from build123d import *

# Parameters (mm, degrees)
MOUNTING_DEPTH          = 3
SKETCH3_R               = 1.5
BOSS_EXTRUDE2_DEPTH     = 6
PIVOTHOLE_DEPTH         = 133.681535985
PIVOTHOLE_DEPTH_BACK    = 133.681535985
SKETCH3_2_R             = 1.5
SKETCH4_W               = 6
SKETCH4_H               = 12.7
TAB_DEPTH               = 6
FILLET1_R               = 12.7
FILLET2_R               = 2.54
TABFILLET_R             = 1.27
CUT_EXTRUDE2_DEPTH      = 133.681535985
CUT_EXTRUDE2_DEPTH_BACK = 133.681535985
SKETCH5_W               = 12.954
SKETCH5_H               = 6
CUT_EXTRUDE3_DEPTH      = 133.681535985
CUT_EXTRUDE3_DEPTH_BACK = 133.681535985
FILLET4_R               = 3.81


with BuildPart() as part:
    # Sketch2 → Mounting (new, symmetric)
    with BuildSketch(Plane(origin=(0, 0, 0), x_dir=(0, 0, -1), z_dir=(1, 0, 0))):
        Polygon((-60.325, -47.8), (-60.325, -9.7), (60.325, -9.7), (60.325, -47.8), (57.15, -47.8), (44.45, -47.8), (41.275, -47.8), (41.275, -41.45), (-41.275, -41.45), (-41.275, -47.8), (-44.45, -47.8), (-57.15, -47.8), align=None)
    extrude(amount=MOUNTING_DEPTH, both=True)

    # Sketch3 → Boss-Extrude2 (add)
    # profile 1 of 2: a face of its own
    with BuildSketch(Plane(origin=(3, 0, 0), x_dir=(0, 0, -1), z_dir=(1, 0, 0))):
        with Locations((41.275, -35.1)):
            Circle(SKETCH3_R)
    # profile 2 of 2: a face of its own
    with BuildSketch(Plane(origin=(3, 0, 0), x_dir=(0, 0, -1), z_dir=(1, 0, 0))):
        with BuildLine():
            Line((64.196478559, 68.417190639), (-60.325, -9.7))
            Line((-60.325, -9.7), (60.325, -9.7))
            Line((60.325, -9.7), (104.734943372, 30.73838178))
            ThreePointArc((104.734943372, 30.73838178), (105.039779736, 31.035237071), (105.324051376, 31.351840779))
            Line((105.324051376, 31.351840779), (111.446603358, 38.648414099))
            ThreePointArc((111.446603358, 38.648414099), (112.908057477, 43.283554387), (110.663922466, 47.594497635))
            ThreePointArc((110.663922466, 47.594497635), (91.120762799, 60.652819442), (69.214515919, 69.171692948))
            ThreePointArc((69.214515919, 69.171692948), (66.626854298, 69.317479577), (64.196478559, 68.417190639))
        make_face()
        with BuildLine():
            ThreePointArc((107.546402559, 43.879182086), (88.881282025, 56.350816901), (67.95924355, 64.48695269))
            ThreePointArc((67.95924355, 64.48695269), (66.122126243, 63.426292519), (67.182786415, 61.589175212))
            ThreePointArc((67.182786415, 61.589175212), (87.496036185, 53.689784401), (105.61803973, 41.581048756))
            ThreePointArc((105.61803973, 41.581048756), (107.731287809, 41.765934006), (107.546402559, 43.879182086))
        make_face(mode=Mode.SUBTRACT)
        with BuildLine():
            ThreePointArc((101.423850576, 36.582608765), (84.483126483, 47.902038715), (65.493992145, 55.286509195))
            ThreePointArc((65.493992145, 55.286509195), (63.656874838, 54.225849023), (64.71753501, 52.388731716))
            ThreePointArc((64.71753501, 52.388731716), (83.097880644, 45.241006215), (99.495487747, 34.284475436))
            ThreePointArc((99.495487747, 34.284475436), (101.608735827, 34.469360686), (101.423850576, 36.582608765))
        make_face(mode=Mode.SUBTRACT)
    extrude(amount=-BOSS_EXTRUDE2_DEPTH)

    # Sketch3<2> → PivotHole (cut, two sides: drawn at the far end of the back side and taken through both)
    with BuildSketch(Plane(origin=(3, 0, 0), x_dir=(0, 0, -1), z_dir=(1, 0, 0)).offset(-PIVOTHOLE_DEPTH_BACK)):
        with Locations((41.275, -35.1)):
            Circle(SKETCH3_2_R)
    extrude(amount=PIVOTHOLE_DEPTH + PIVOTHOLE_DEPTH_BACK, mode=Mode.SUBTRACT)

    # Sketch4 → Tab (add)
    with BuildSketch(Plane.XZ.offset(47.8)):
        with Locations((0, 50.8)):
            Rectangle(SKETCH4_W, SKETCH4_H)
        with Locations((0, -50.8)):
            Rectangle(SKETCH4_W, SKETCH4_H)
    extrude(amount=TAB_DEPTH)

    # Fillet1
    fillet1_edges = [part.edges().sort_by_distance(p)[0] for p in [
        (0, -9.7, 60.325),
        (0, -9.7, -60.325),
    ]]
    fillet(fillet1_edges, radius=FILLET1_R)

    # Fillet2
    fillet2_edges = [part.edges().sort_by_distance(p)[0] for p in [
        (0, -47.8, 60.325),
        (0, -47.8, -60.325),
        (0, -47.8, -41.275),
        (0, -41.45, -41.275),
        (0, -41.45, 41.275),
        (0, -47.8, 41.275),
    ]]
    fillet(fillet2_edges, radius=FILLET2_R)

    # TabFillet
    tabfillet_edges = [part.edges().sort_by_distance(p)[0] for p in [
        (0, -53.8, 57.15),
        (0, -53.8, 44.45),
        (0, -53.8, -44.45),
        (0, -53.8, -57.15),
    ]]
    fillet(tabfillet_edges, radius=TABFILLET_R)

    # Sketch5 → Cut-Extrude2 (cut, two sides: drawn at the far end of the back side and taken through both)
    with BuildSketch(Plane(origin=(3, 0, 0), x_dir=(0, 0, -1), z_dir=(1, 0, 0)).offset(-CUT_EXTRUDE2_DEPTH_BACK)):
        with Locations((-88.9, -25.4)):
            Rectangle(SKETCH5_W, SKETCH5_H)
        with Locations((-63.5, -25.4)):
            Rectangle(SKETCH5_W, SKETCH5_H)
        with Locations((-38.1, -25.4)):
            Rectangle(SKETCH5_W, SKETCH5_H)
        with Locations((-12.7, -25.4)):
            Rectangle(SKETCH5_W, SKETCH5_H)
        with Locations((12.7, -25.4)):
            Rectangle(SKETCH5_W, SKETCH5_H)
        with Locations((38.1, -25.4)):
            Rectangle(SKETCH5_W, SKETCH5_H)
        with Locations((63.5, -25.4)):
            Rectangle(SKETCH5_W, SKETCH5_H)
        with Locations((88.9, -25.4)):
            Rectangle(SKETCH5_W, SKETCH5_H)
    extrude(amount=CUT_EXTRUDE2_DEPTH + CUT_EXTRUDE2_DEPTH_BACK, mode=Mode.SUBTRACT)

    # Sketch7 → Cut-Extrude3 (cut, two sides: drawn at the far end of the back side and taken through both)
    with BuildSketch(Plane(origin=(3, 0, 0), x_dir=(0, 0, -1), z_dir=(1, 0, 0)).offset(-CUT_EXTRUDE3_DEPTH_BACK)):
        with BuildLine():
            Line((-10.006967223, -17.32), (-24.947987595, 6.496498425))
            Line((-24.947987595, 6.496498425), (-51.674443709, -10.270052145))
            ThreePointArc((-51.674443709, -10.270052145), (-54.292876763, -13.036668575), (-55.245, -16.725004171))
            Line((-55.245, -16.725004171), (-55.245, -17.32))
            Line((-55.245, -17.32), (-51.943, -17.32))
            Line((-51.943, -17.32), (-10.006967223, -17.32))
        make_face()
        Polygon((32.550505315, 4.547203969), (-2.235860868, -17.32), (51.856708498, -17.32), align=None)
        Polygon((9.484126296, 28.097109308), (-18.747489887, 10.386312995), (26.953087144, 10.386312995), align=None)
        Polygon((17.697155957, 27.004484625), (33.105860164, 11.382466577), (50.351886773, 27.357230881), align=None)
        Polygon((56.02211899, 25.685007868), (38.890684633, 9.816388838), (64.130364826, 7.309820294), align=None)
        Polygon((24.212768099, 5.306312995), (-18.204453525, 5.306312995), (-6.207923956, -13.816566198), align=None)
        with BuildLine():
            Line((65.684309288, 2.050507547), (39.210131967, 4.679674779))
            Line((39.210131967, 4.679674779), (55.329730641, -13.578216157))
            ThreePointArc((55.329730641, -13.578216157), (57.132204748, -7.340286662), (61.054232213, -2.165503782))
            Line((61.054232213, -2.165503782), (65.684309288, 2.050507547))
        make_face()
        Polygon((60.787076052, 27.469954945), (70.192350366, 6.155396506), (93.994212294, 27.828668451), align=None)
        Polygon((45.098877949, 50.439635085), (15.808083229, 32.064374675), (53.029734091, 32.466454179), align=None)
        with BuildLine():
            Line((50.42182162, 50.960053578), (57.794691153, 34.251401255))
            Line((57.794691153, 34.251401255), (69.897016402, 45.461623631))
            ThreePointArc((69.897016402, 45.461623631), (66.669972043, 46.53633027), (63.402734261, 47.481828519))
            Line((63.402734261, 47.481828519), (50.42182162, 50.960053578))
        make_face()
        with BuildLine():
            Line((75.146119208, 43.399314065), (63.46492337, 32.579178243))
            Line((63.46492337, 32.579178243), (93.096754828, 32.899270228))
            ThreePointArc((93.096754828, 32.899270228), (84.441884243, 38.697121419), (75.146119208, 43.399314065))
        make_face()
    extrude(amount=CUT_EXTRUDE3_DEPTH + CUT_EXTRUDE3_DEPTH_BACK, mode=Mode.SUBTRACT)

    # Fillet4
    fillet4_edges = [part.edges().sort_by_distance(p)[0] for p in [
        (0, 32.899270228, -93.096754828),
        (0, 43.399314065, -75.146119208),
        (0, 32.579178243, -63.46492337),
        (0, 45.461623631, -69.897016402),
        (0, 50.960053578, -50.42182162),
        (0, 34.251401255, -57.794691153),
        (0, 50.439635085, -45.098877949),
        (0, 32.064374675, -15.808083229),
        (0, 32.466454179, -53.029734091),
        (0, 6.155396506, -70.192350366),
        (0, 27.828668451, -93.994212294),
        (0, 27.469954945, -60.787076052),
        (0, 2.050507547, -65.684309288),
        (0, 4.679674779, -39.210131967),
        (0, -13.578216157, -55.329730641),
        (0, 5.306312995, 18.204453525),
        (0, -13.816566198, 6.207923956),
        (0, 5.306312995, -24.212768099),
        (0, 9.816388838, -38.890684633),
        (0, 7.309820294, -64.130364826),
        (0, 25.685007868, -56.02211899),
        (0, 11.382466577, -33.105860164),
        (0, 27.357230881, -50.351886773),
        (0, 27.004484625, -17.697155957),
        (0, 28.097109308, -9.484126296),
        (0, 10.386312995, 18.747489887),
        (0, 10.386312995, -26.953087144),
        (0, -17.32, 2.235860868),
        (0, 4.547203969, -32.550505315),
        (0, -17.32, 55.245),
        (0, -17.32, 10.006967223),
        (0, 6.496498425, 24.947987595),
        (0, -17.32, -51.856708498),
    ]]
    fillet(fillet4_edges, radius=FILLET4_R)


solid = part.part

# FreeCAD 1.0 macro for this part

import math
import FreeCAD as App
import Part
import Sketcher

V = App.Vector
Q = App.Units.Quantity


def edges_at(feature, points):
    """Names of the edges that pass closest to the given points."""
    edges = feature.Shape.Edges
    near = lambda p: min(range(len(edges)), key=lambda i: edges[i].distToShape(Part.Vertex(*p))[0])
    return sorted({f"Edge{near(p) + 1}" for p in points})

doc = App.newDocument("Part")
body = doc.addObject("PartDesign::Body", "Body")

# Sketch on YZ plane
sketch1 = body.newObject("Sketcher::SketchObject", "Sketch")
sketch1.AttachmentSupport = (doc.getObject("YZ_Plane"), [""])
sketch1.MapMode = "FlatFace"
sketch1.addGeometry(Part.LineSegment(V(-9.7, 60.325, 0), V(-47.8, 60.325, 0)), False)
sketch1.addGeometry(Part.LineSegment(V(-47.8, 60.325, 0), V(-47.8, 41.275, 0)), False)
sketch1.addGeometry(Part.LineSegment(V(-47.8, 41.275, 0), V(-41.45, 41.275, 0)), False)
sketch1.addGeometry(Part.LineSegment(V(-41.45, 41.275, 0), V(-41.45, -41.275, 0)), False)
sketch1.addGeometry(Part.LineSegment(V(-41.45, -41.275, 0), V(-47.8, -41.275, 0)), False)
sketch1.addGeometry(Part.LineSegment(V(-47.8, -41.275, 0), V(-47.8, -60.325, 0)), False)
sketch1.addGeometry(Part.LineSegment(V(-47.8, -60.325, 0), V(-9.7, -60.325, 0)), False)
sketch1.addGeometry(Part.LineSegment(V(-9.7, -60.325, 0), V(-9.7, 60.325, 0)), False)
sketch1.addConstraint(Sketcher.Constraint("Coincident", 0, 2, 1, 1))
sketch1.addConstraint(Sketcher.Constraint("Coincident", 1, 2, 2, 1))
sketch1.addConstraint(Sketcher.Constraint("Coincident", 2, 2, 3, 1))
sketch1.addConstraint(Sketcher.Constraint("Coincident", 3, 2, 4, 1))
sketch1.addConstraint(Sketcher.Constraint("Coincident", 4, 2, 5, 1))
sketch1.addConstraint(Sketcher.Constraint("Coincident", 5, 2, 6, 1))
sketch1.addConstraint(Sketcher.Constraint("Coincident", 6, 2, 7, 1))
sketch1.addConstraint(Sketcher.Constraint("Coincident", 7, 2, 0, 1))
sketch1.addConstraint(Sketcher.Constraint("Horizontal", 0))
sketch1.addConstraint(Sketcher.Constraint("Vertical", 1))
sketch1.addConstraint(Sketcher.Constraint("Horizontal", 2))
sketch1.addConstraint(Sketcher.Constraint("Vertical", 3))
sketch1.addConstraint(Sketcher.Constraint("Horizontal", 4))
sketch1.addConstraint(Sketcher.Constraint("Vertical", 5))
sketch1.addConstraint(Sketcher.Constraint("Horizontal", 6))
sketch1.addConstraint(Sketcher.Constraint("Vertical", 7))
sketch1.addConstraint(Sketcher.Constraint("Symmetric", 1, 2, 4, 2, -1))
sketch1.addConstraint(Sketcher.Constraint("Equal", 1, 5))
sketch1.addConstraint(Sketcher.Constraint("DistanceX", 0, 2, 0, 1, Q("1.5 in")))
sketch1.addConstraint(Sketcher.Constraint("DistanceY", 3, 2, 0, 2, Q("4 in")))
sketch1.addConstraint(Sketcher.Constraint("DistanceX", 2, 1, 2, 2, Q("0.25 in")))
sketch1.addConstraint(Sketcher.Constraint("DistanceY", 1, 2, 1, 1, Q("0.75 in")))
sketch1.addConstraint(Sketcher.Constraint("DistanceX", 0, 2, -1, 1, 47.8))
pad1 = body.newObject("PartDesign::Pad", "Pad")
pad1.Profile = sketch1
pad1.Length = 6
pad1.Midplane = True

# Sketch on YZ plane
sketch2 = body.newObject("Sketcher::SketchObject", "Sketch001")
sketch2.AttachmentSupport = (doc.getObject("YZ_Plane"), [""])
sketch2.MapMode = "FlatFace"
sketch2.AttachmentOffset = App.Placement(V(0, 0, 3), App.Rotation())
sketch2.addGeometry(Part.Circle(V(-35.1, -41.275, 0), V(0, 0, 1), 1.5), False)
sketch2.addGeometry(Part.LineSegment(V(68.417191, -64.196479, 0), V(-9.7, 60.325, 0)), False)
sketch2.addGeometry(Part.LineSegment(V(-9.7, 60.325, 0), V(-9.7, -60.325, 0)), False)
sketch2.addGeometry(Part.LineSegment(V(-9.7, -60.325, 0), V(30.738382, -104.734943, 0)), False)
sketch2.addGeometry(Part.ArcOfCircle(Part.Circle(V(35.433542, -100.459669, 0), V(0, 0, 1), 6.35), math.radians(-137.679932), math.radians(-130)), False)
sketch2.addGeometry(Part.LineSegment(V(31.351841, -105.324051, 0), V(38.648414, -111.446603, 0)), False)
sketch2.addGeometry(Part.ArcOfCircle(Part.Circle(V(42.730115, -106.582221, 0), V(0, 0, 1), 6.35), math.radians(-130), math.radians(-40)), False)
sketch2.addGeometry(Part.ArcOfCircle(Part.Circle(V(-35.1, -41.275, 0), V(0, 0, 1), 107.95), math.radians(-40), math.radians(-15)), False)
sketch2.addGeometry(Part.ArcOfCircle(Part.Circle(V(63.038064, -67.571015, 0), V(0, 0, 1), 6.35), math.radians(-15), math.radians(32.101656)), False)
sketch2.addGeometry(Part.ArcOfCircle(Part.Circle(V(-35.1, -41.275, 0), V(0, 0, 1), 93.575), math.radians(-40), math.radians(-15)), False)
sketch2.addGeometry(Part.ArcOfCircle(Part.Circle(V(35.433542, -100.459669, 0), V(0, 0, 1), 1.5), math.radians(140), math.radians(320)), False)
sketch2.addGeometry(Part.ArcOfCircle(Part.Circle(V(-35.1, -41.275, 0), V(0, 0, 1), 90.575), math.radians(-40), math.radians(-15)), False)
sketch2.addGeometry(Part.ArcOfCircle(Part.Circle(V(53.83762, -65.105764, 0), V(0, 0, 1), 1.5), math.radians(-15), math.radians(165)), False)
sketch2.addGeometry(Part.ArcOfCircle(Part.Circle(V(-35.1, -41.275, 0), V(0, 0, 1), 103.1), math.radians(-40), math.radians(-15)), False)
sketch2.addGeometry(Part.ArcOfCircle(Part.Circle(V(42.730115, -106.582221, 0), V(0, 0, 1), 1.5), math.radians(140), math.radians(320)), False)
sketch2.addGeometry(Part.ArcOfCircle(Part.Circle(V(-35.1, -41.275, 0), V(0, 0, 1), 100.1), math.radians(-40), math.radians(-15)), False)
sketch2.addGeometry(Part.ArcOfCircle(Part.Circle(V(63.038064, -67.571015, 0), V(0, 0, 1), 1.5), math.radians(-15), math.radians(165)), False)
sketch2.addConstraint(Sketcher.Constraint("Coincident", 1, 2, 2, 1))
sketch2.addConstraint(Sketcher.Constraint("Coincident", 2, 2, 3, 1))
sketch2.addConstraint(Sketcher.Constraint("Tangent", 3, 2, 4, 1))
sketch2.addConstraint(Sketcher.Constraint("Tangent", 4, 2, 5, 1))
sketch2.addConstraint(Sketcher.Constraint("Tangent", 5, 2, 6, 1))
sketch2.addConstraint(Sketcher.Constraint("Tangent", 6, 2, 7, 1))
sketch2.addConstraint(Sketcher.Constraint("Tangent", 7, 2, 8, 1))
sketch2.addConstraint(Sketcher.Constraint("Tangent", 8, 2, 1, 1))
sketch2.addConstraint(Sketcher.Constraint("Tangent", 9, 1, 10, 2))
sketch2.addConstraint(Sketcher.Constraint("Tangent", 10, 1, 11, 1))
sketch2.addConstraint(Sketcher.Constraint("Tangent", 11, 2, 12, 2))
sketch2.addConstraint(Sketcher.Constraint("Tangent", 12, 1, 9, 2))
sketch2.addConstraint(Sketcher.Constraint("Tangent", 13, 1, 14, 2))
sketch2.addConstraint(Sketcher.Constraint("Tangent", 14, 1, 15, 1))
sketch2.addConstraint(Sketcher.Constraint("Tangent", 15, 2, 16, 2))
sketch2.addConstraint(Sketcher.Constraint("Tangent", 16, 1, 13, 2))
sketch2.addConstraint(Sketcher.Constraint("Vertical", 2))
sketch2.addConstraint(Sketcher.Constraint("Coincident", 7, 3, 0, 3))
sketch2.addConstraint(Sketcher.Constraint("Coincident", 9, 3, 0, 3))
sketch2.addConstraint(Sketcher.Constraint("Coincident", 10, 3, 4, 3))
sketch2.addConstraint(Sketcher.Constraint("Coincident", 11, 3, 0, 3))
sketch2.addConstraint(Sketcher.Constraint("Coincident", 13, 3, 0, 3))
sketch2.addConstraint(Sketcher.Constraint("Coincident", 14, 3, 6, 3))
sketch2.addConstraint(Sketcher.Constraint("Coincident", 15, 3, 0, 3))
sketch2.addConstraint(Sketcher.Constraint("Coincident", 16, 3, 8, 3))
sketch2.addConstraint(Sketcher.Constraint("Equal", 4, 6))
sketch2.addConstraint(Sketcher.Constraint("Equal", 0, 10))
sketch2.addConstraint(Sketcher.Constraint("Equal", 12, 14))
sketch2.addConstraint(Sketcher.Constraint("Radius", 4, Q("0.25 in")))
sketch2.addConstraint(Sketcher.Constraint("Radius", 7, Q("4.25 in")))
sketch2.addConstraint(Sketcher.Constraint("Angle", 5, Q("-40 deg")))
sketch2.addConstraint(Sketcher.Constraint("DistanceX", 15, 3, 1, 2, Q("1 in")))
sketch2.addConstraint(Sketcher.Constraint("DistanceY", 15, 3, 1, 2, Q("4 in")))
sketch2.addConstraint(Sketcher.Constraint("DistanceY", 2, 2, 2, 1, Q("4.75 in")))
sketch2.addConstraint(Sketcher.Constraint("Diameter", 0, 3.0))
sketch2.addConstraint(Sketcher.Constraint("Radius", 9, 93.575))
sketch2.addConstraint(Sketcher.Constraint("DistanceY", 0, 3, -1, 1, Q("1.625 in")))
sketch2.addConstraint(Sketcher.Constraint("DistanceX", 0, 3, -1, 1, 35.1))
sketch2.addConstraint(Sketcher.Constraint("DistanceY", 6, 2, 14, 3, 4.081701))
sketch2.addConstraint(Sketcher.Constraint("Distance", 1, 146.996238))
sketch2.addConstraint(Sketcher.Constraint("DistanceX", -1, 1, 12, 3, 53.83762))
pad2 = body.newObject("PartDesign::Pad", "Pad001")
pad2.Profile = sketch2
pad2.Length = 6
pad2.Reversed = True

# Sketch on YZ plane
sketch3 = body.newObject("Sketcher::SketchObject", "Sketch002")
sketch3.AttachmentSupport = (doc.getObject("YZ_Plane"), [""])
sketch3.MapMode = "FlatFace"
sketch3.AttachmentOffset = App.Placement(V(0, 0, 3), App.Rotation())
sketch3.addGeometry(Part.Circle(V(-35.1, -41.275, 0), V(0, 0, 1), 1.5), False)
sketch3.addConstraint(Sketcher.Constraint("Diameter", 0, 3.0))
sketch3.addConstraint(Sketcher.Constraint("DistanceY", 0, 3, -1, 1, Q("1.625 in")))
sketch3.addConstraint(Sketcher.Constraint("DistanceX", 0, 3, -1, 1, 35.1))
pocket1 = body.newObject("PartDesign::Pocket", "Pocket")
pocket1.Profile = sketch3
pocket1.Type = "ThroughAll"
pocket1.Midplane = True

# Sketch on XZ plane
sketch4 = body.newObject("Sketcher::SketchObject", "Sketch003")
sketch4.AttachmentSupport = (doc.getObject("XZ_Plane"), [""])
sketch4.MapMode = "FlatFace"
sketch4.AttachmentOffset = App.Placement(V(0, 0, 47.8), App.Rotation())
sketch4.addGeometry(Part.LineSegment(V(-3, 57.15, 0), V(-3, 44.45, 0)), False)
sketch4.addGeometry(Part.LineSegment(V(-3, 44.45, 0), V(3, 44.45, 0)), False)
sketch4.addGeometry(Part.LineSegment(V(3, 44.45, 0), V(3, 57.15, 0)), False)
sketch4.addGeometry(Part.LineSegment(V(3, 57.15, 0), V(-3, 57.15, 0)), False)
sketch4.addGeometry(Part.LineSegment(V(-3, -44.45, 0), V(-3, -57.15, 0)), False)
sketch4.addGeometry(Part.LineSegment(V(-3, -57.15, 0), V(3, -57.15, 0)), False)
sketch4.addGeometry(Part.LineSegment(V(3, -57.15, 0), V(3, -44.45, 0)), False)
sketch4.addGeometry(Part.LineSegment(V(3, -44.45, 0), V(-3, -44.45, 0)), False)
sketch4.addConstraint(Sketcher.Constraint("Coincident", 0, 2, 1, 1))
sketch4.addConstraint(Sketcher.Constraint("Coincident", 1, 2, 2, 1))
sketch4.addConstraint(Sketcher.Constraint("Coincident", 2, 2, 3, 1))
sketch4.addConstraint(Sketcher.Constraint("Coincident", 3, 2, 0, 1))
sketch4.addConstraint(Sketcher.Constraint("Coincident", 4, 2, 5, 1))
sketch4.addConstraint(Sketcher.Constraint("Coincident", 5, 2, 6, 1))
sketch4.addConstraint(Sketcher.Constraint("Coincident", 6, 2, 7, 1))
sketch4.addConstraint(Sketcher.Constraint("Coincident", 7, 2, 4, 1))
sketch4.addConstraint(Sketcher.Constraint("Vertical", 0))
sketch4.addConstraint(Sketcher.Constraint("Horizontal", 1))
sketch4.addConstraint(Sketcher.Constraint("Vertical", 2))
sketch4.addConstraint(Sketcher.Constraint("Horizontal", 3))
sketch4.addConstraint(Sketcher.Constraint("Vertical", 4))
sketch4.addConstraint(Sketcher.Constraint("Horizontal", 5))
sketch4.addConstraint(Sketcher.Constraint("Vertical", 6))
sketch4.addConstraint(Sketcher.Constraint("Horizontal", 7))
sketch4.addConstraint(Sketcher.Constraint("Symmetric", 2, 2, 4, 2, -1, 1))
sketch4.addConstraint(Sketcher.Constraint("Symmetric", 0, 2, 6, 2, -1, 1))
sketch4.addConstraint(Sketcher.Constraint("Vertical", 3, 2, 4, 2))
sketch4.addConstraint(Sketcher.Constraint("DistanceY", 0, 2, 0, 1, Q("0.5 in")))
sketch4.addConstraint(Sketcher.Constraint("DistanceY", 4, 2, 0, 2, Q("4 in")))
sketch4.addConstraint(Sketcher.Constraint("DistanceX", 1, 1, 1, 2, 6.0))
pad3 = body.newObject("PartDesign::Pad", "Pad002")
pad3.Profile = sketch4
pad3.Length = 6
doc.recompute()

fillet = body.newObject("PartDesign::Fillet", "Fillet")
fillet.Base = (pad3, edges_at(pad3, [(0, -9.7, 60.325), (0, -9.7, -60.325)]))
fillet.Radius = Q("0.5 in")
doc.recompute()

fillet2 = body.newObject("PartDesign::Fillet", "Fillet001")
fillet2.Base = (fillet, edges_at(fillet, [
    (0, -47.8, 60.325),
    (0, -47.8, -60.325),
    (0, -47.8, -41.275),
    (0, -41.45, -41.275),
    (0, -41.45, 41.275),
    (0, -47.8, 41.275),
]))
fillet2.Radius = Q("0.1 in")
doc.recompute()

fillet3 = body.newObject("PartDesign::Fillet", "Fillet002")
fillet3.Base = (fillet2, edges_at(fillet2, [
    (0, -53.8, 57.15),
    (0, -53.8, 44.45),
    (0, -53.8, -44.45),
    (0, -53.8, -57.15),
]))
fillet3.Radius = Q("0.05 in")

# Sketch on YZ plane
sketch5 = body.newObject("Sketcher::SketchObject", "Sketch004")
sketch5.AttachmentSupport = (doc.getObject("YZ_Plane"), [""])
sketch5.MapMode = "FlatFace"
sketch5.AttachmentOffset = App.Placement(V(0, 0, 3), App.Rotation())
sketch5.addGeometry(Part.LineSegment(V(-22.4, 95.377, 0), V(-28.4, 95.377, 0)), False)
sketch5.addGeometry(Part.LineSegment(V(-28.4, 95.377, 0), V(-28.4, 82.423, 0)), False)
sketch5.addGeometry(Part.LineSegment(V(-28.4, 82.423, 0), V(-22.4, 82.423, 0)), False)
sketch5.addGeometry(Part.LineSegment(V(-22.4, 82.423, 0), V(-22.4, 95.377, 0)), False)
sketch5.addGeometry(Part.LineSegment(V(-22.4, 69.977, 0), V(-28.4, 69.977, 0)), False)
sketch5.addGeometry(Part.LineSegment(V(-28.4, 69.977, 0), V(-28.4, 57.023, 0)), False)
sketch5.addGeometry(Part.LineSegment(V(-28.4, 57.023, 0), V(-22.4, 57.023, 0)), False)
sketch5.addGeometry(Part.LineSegment(V(-22.4, 57.023, 0), V(-22.4, 69.977, 0)), False)
sketch5.addGeometry(Part.LineSegment(V(-22.4, 44.577, 0), V(-28.4, 44.577, 0)), False)
sketch5.addGeometry(Part.LineSegment(V(-28.4, 44.577, 0), V(-28.4, 31.623, 0)), False)
sketch5.addGeometry(Part.LineSegment(V(-28.4, 31.623, 0), V(-22.4, 31.623, 0)), False)
sketch5.addGeometry(Part.LineSegment(V(-22.4, 31.623, 0), V(-22.4, 44.577, 0)), False)
sketch5.addGeometry(Part.LineSegment(V(-22.4, 19.177, 0), V(-28.4, 19.177, 0)), False)
sketch5.addGeometry(Part.LineSegment(V(-28.4, 19.177, 0), V(-28.4, 6.223, 0)), False)
sketch5.addGeometry(Part.LineSegment(V(-28.4, 6.223, 0), V(-22.4, 6.223, 0)), False)
sketch5.addGeometry(Part.LineSegment(V(-22.4, 6.223, 0), V(-22.4, 19.177, 0)), False)
sketch5.addGeometry(Part.LineSegment(V(-22.4, -6.223, 0), V(-28.4, -6.223, 0)), False)
sketch5.addGeometry(Part.LineSegment(V(-28.4, -6.223, 0), V(-28.4, -19.177, 0)), False)
sketch5.addGeometry(Part.LineSegment(V(-28.4, -19.177, 0), V(-22.4, -19.177, 0)), False)
sketch5.addGeometry(Part.LineSegment(V(-22.4, -19.177, 0), V(-22.4, -6.223, 0)), False)
sketch5.addGeometry(Part.LineSegment(V(-22.4, -31.623, 0), V(-28.4, -31.623, 0)), False)
sketch5.addGeometry(Part.LineSegment(V(-28.4, -31.623, 0), V(-28.4, -44.577, 0)), False)
sketch5.addGeometry(Part.LineSegment(V(-28.4, -44.577, 0), V(-22.4, -44.577, 0)), False)
sketch5.addGeometry(Part.LineSegment(V(-22.4, -44.577, 0), V(-22.4, -31.623, 0)), False)
sketch5.addGeometry(Part.LineSegment(V(-22.4, -57.023, 0), V(-28.4, -57.023, 0)), False)
sketch5.addGeometry(Part.LineSegment(V(-28.4, -57.023, 0), V(-28.4, -69.977, 0)), False)
sketch5.addGeometry(Part.LineSegment(V(-28.4, -69.977, 0), V(-22.4, -69.977, 0)), False)
sketch5.addGeometry(Part.LineSegment(V(-22.4, -69.977, 0), V(-22.4, -57.023, 0)), False)
sketch5.addGeometry(Part.LineSegment(V(-22.4, -82.423, 0), V(-28.4, -82.423, 0)), False)
sketch5.addGeometry(Part.LineSegment(V(-28.4, -82.423, 0), V(-28.4, -95.377, 0)), False)
sketch5.addGeometry(Part.LineSegment(V(-28.4, -95.377, 0), V(-22.4, -95.377, 0)), False)
sketch5.addGeometry(Part.LineSegment(V(-22.4, -95.377, 0), V(-22.4, -82.423, 0)), False)
sketch5.addConstraint(Sketcher.Constraint("Coincident", 0, 2, 1, 1))
sketch5.addConstraint(Sketcher.Constraint("Coincident", 1, 2, 2, 1))
sketch5.addConstraint(Sketcher.Constraint("Coincident", 2, 2, 3, 1))
sketch5.addConstraint(Sketcher.Constraint("Coincident", 3, 2, 0, 1))
sketch5.addConstraint(Sketcher.Constraint("Coincident", 4, 2, 5, 1))
sketch5.addConstraint(Sketcher.Constraint("Coincident", 5, 2, 6, 1))
sketch5.addConstraint(Sketcher.Constraint("Coincident", 6, 2, 7, 1))
sketch5.addConstraint(Sketcher.Constraint("Coincident", 7, 2, 4, 1))
sketch5.addConstraint(Sketcher.Constraint("Coincident", 8, 2, 9, 1))
sketch5.addConstraint(Sketcher.Constraint("Coincident", 9, 2, 10, 1))
sketch5.addConstraint(Sketcher.Constraint("Coincident", 10, 2, 11, 1))
sketch5.addConstraint(Sketcher.Constraint("Coincident", 11, 2, 8, 1))
sketch5.addConstraint(Sketcher.Constraint("Coincident", 12, 2, 13, 1))
sketch5.addConstraint(Sketcher.Constraint("Coincident", 13, 2, 14, 1))
sketch5.addConstraint(Sketcher.Constraint("Coincident", 14, 2, 15, 1))
sketch5.addConstraint(Sketcher.Constraint("Coincident", 15, 2, 12, 1))
sketch5.addConstraint(Sketcher.Constraint("Coincident", 16, 2, 17, 1))
sketch5.addConstraint(Sketcher.Constraint("Coincident", 17, 2, 18, 1))
sketch5.addConstraint(Sketcher.Constraint("Coincident", 18, 2, 19, 1))
sketch5.addConstraint(Sketcher.Constraint("Coincident", 19, 2, 16, 1))
sketch5.addConstraint(Sketcher.Constraint("Coincident", 20, 2, 21, 1))
sketch5.addConstraint(Sketcher.Constraint("Coincident", 21, 2, 22, 1))
sketch5.addConstraint(Sketcher.Constraint("Coincident", 22, 2, 23, 1))
sketch5.addConstraint(Sketcher.Constraint("Coincident", 23, 2, 20, 1))
sketch5.addConstraint(Sketcher.Constraint("Coincident", 24, 2, 25, 1))
sketch5.addConstraint(Sketcher.Constraint("Coincident", 25, 2, 26, 1))
sketch5.addConstraint(Sketcher.Constraint("Coincident", 26, 2, 27, 1))
sketch5.addConstraint(Sketcher.Constraint("Coincident", 27, 2, 24, 1))
sketch5.addConstraint(Sketcher.Constraint("Coincident", 28, 2, 29, 1))
sketch5.addConstraint(Sketcher.Constraint("Coincident", 29, 2, 30, 1))
sketch5.addConstraint(Sketcher.Constraint("Coincident", 30, 2, 31, 1))
sketch5.addConstraint(Sketcher.Constraint("Coincident", 31, 2, 28, 1))
sketch5.addConstraint(Sketcher.Constraint("Horizontal", 0))
sketch5.addConstraint(Sketcher.Constraint("Vertical", 1))
sketch5.addConstraint(Sketcher.Constraint("Horizontal", 2))
sketch5.addConstraint(Sketcher.Constraint("Vertical", 3))
sketch5.addConstraint(Sketcher.Constraint("Horizontal", 4))
sketch5.addConstraint(Sketcher.Constraint("Vertical", 5))
sketch5.addConstraint(Sketcher.Constraint("Horizontal", 6))
sketch5.addConstraint(Sketcher.Constraint("Vertical", 7))
sketch5.addConstraint(Sketcher.Constraint("Horizontal", 8))
sketch5.addConstraint(Sketcher.Constraint("Vertical", 9))
sketch5.addConstraint(Sketcher.Constraint("Horizontal", 10))
sketch5.addConstraint(Sketcher.Constraint("Vertical", 11))
sketch5.addConstraint(Sketcher.Constraint("Horizontal", 12))
sketch5.addConstraint(Sketcher.Constraint("Vertical", 13))
sketch5.addConstraint(Sketcher.Constraint("Horizontal", 14))
sketch5.addConstraint(Sketcher.Constraint("Vertical", 15))
sketch5.addConstraint(Sketcher.Constraint("Horizontal", 16))
sketch5.addConstraint(Sketcher.Constraint("Vertical", 17))
sketch5.addConstraint(Sketcher.Constraint("Horizontal", 18))
sketch5.addConstraint(Sketcher.Constraint("Vertical", 19))
sketch5.addConstraint(Sketcher.Constraint("Horizontal", 20))
sketch5.addConstraint(Sketcher.Constraint("Vertical", 21))
sketch5.addConstraint(Sketcher.Constraint("Horizontal", 22))
sketch5.addConstraint(Sketcher.Constraint("Vertical", 23))
sketch5.addConstraint(Sketcher.Constraint("Horizontal", 24))
sketch5.addConstraint(Sketcher.Constraint("Vertical", 25))
sketch5.addConstraint(Sketcher.Constraint("Horizontal", 26))
sketch5.addConstraint(Sketcher.Constraint("Vertical", 27))
sketch5.addConstraint(Sketcher.Constraint("Horizontal", 28))
sketch5.addConstraint(Sketcher.Constraint("Vertical", 29))
sketch5.addConstraint(Sketcher.Constraint("Horizontal", 30))
sketch5.addConstraint(Sketcher.Constraint("Vertical", 31))
sketch5.addConstraint(Sketcher.Constraint("Symmetric", 13, 2, 16, 2, -1))
sketch5.addConstraint(Sketcher.Constraint("Symmetric", 15, 2, 18, 2, -1))
sketch5.addConstraint(Sketcher.Constraint("Symmetric", 9, 2, 20, 2, -1))
sketch5.addConstraint(Sketcher.Constraint("Symmetric", 11, 2, 22, 2, -1))
sketch5.addConstraint(Sketcher.Constraint("Symmetric", 5, 2, 24, 2, -1))
sketch5.addConstraint(Sketcher.Constraint("Symmetric", 7, 2, 26, 2, -1))
sketch5.addConstraint(Sketcher.Constraint("Symmetric", 1, 2, 28, 2, -1))
sketch5.addConstraint(Sketcher.Constraint("Symmetric", 3, 2, 30, 2, -1))
sketch5.addConstraint(Sketcher.Constraint("Vertical", 1, 2, 4, 2))
sketch5.addConstraint(Sketcher.Constraint("Vertical", 3, 2, 6, 2))
sketch5.addConstraint(Sketcher.Constraint("Vertical", 5, 2, 8, 2))
sketch5.addConstraint(Sketcher.Constraint("Vertical", 7, 2, 10, 2))
sketch5.addConstraint(Sketcher.Constraint("Vertical", 9, 2, 12, 2))
sketch5.addConstraint(Sketcher.Constraint("Vertical", 11, 2, 14, 2))
sketch5.addConstraint(Sketcher.Constraint("Equal", 3, 5))
sketch5.addConstraint(Sketcher.Constraint("Equal", 7, 9))
sketch5.addConstraint(Sketcher.Constraint("Equal", 11, 13))
sketch5.addConstraint(Sketcher.Constraint("DistanceY", 4, 2, 0, 2, Q("1 in")))
sketch5.addConstraint(Sketcher.Constraint("DistanceY", 8, 2, 4, 2, Q("1 in")))
sketch5.addConstraint(Sketcher.Constraint("DistanceY", 12, 2, 8, 2, Q("1 in")))
sketch5.addConstraint(Sketcher.Constraint("DistanceY", 16, 2, 12, 2, Q("1 in")))
sketch5.addConstraint(Sketcher.Constraint("DistanceY", 1, 2, 1, 1, Q("0.51 in")))
sketch5.addConstraint(Sketcher.Constraint("DistanceX", 0, 2, 0, 1, 6.0))
sketch5.addConstraint(Sketcher.Constraint("DistanceX", 0, 2, -1, 1, 28.4))
pocket2 = body.newObject("PartDesign::Pocket", "Pocket001")
pocket2.Profile = sketch5
pocket2.Type = "ThroughAll"
pocket2.Midplane = True

# Sketch on YZ plane
sketch6 = body.newObject("Sketcher::SketchObject", "Sketch005")
sketch6.AttachmentSupport = (doc.getObject("YZ_Plane"), [""])
sketch6.MapMode = "FlatFace"
sketch6.AttachmentOffset = App.Placement(V(0, 0, 3), App.Rotation())
sketch6.addGeometry(Part.LineSegment(V(-17.32, 10.006967, 0), V(6.496498, 24.947988, 0)), False)
sketch6.addGeometry(Part.LineSegment(V(6.496498, 24.947988, 0), V(-10.270052, 51.674444, 0)), False)
sketch6.addGeometry(Part.ArcOfCircle(Part.Circle(V(-16.725004, 47.625, 0), V(0, 0, 1), 7.62), math.radians(32.101656), math.radians(90)), False)
sketch6.addGeometry(Part.LineSegment(V(-16.725004, 55.245, 0), V(-17.32, 55.245, 0)), False)
sketch6.addGeometry(Part.LineSegment(V(-17.32, 55.245, 0), V(-17.32, 10.006967, 0)), False)
sketch6.addGeometry(Part.LineSegment(V(4.547204, -32.550505, 0), V(-17.32, 2.235861, 0)), False)
sketch6.addGeometry(Part.LineSegment(V(-17.32, 2.235861, 0), V(-17.32, -51.856708, 0)), False)
sketch6.addGeometry(Part.LineSegment(V(-17.32, -51.856708, 0), V(4.547204, -32.550505, 0)), False)
sketch6.addGeometry(Part.LineSegment(V(28.097109, -9.484126, 0), V(10.386313, 18.74749, 0)), False)
sketch6.addGeometry(Part.LineSegment(V(10.386313, 18.74749, 0), V(10.386313, -26.953087, 0)), False)
sketch6.addGeometry(Part.LineSegment(V(10.386313, -26.953087, 0), V(28.097109, -9.484126, 0)), False)
sketch6.addGeometry(Part.LineSegment(V(27.004485, -17.697156, 0), V(11.382467, -33.10586, 0)), False)
sketch6.addGeometry(Part.LineSegment(V(11.382467, -33.10586, 0), V(27.357231, -50.351887, 0)), False)
sketch6.addGeometry(Part.LineSegment(V(27.357231, -50.351887, 0), V(27.004485, -17.697156, 0)), False)
sketch6.addGeometry(Part.LineSegment(V(25.685008, -56.022119, 0), V(9.816389, -38.890685, 0)), False)
sketch6.addGeometry(Part.LineSegment(V(9.816389, -38.890685, 0), V(7.30982, -64.130365, 0)), False)
sketch6.addGeometry(Part.LineSegment(V(7.30982, -64.130365, 0), V(25.685008, -56.022119, 0)), False)
sketch6.addGeometry(Part.LineSegment(V(5.306313, -24.212768, 0), V(5.306313, 18.204454, 0)), False)
sketch6.addGeometry(Part.LineSegment(V(5.306313, 18.204454, 0), V(-13.816566, 6.207924, 0)), False)
sketch6.addGeometry(Part.LineSegment(V(-13.816566, 6.207924, 0), V(5.306313, -24.212768, 0)), False)
sketch6.addGeometry(Part.LineSegment(V(2.050508, -65.684309, 0), V(4.679675, -39.210132, 0)), False)
sketch6.addGeometry(Part.LineSegment(V(4.679675, -39.210132, 0), V(-13.578216, -55.329731, 0)), False)
sketch6.addGeometry(Part.ArcOfCircle(Part.Circle(V(-15.311953, -73.025, 0), V(0, 0, 1), 17.78), math.radians(42.320068), math.radians(84.404169)), False)
sketch6.addGeometry(Part.LineSegment(V(-2.165504, -61.054232, 0), V(2.050508, -65.684309, 0)), False)
sketch6.addGeometry(Part.LineSegment(V(27.469955, -60.787076, 0), V(6.155397, -70.19235, 0)), False)
sketch6.addGeometry(Part.LineSegment(V(6.155397, -70.19235, 0), V(27.828668, -93.994212, 0)), False)
sketch6.addGeometry(Part.LineSegment(V(27.828668, -93.994212, 0), V(27.469955, -60.787076, 0)), False)
sketch6.addGeometry(Part.LineSegment(V(50.439635, -45.098878, 0), V(32.064375, -15.808083, 0)), False)
sketch6.addGeometry(Part.LineSegment(V(32.064375, -15.808083, 0), V(32.466454, -53.029734, 0)), False)
sketch6.addGeometry(Part.LineSegment(V(32.466454, -53.029734, 0), V(50.439635, -45.098878, 0)), False)
sketch6.addGeometry(Part.LineSegment(V(50.960054, -50.421822, 0), V(34.251401, -57.794691, 0)), False)
sketch6.addGeometry(Part.LineSegment(V(34.251401, -57.794691, 0), V(45.461624, -69.897016, 0)), False)
sketch6.addGeometry(Part.ArcOfCircle(Part.Circle(V(-35.1, -41.275, 0), V(0, 0, 1), 85.495), math.radians(-19.559161), math.radians(-15)), False)
sketch6.addGeometry(Part.LineSegment(V(47.481829, -63.402734, 0), V(50.960054, -50.421822, 0)), False)
sketch6.addGeometry(Part.LineSegment(V(43.399314, -75.146119, 0), V(32.579178, -63.464923, 0)), False)
sketch6.addGeometry(Part.LineSegment(V(32.579178, -63.464923, 0), V(32.89927, -93.096755, 0)), False)
sketch6.addGeometry(Part.ArcOfCircle(Part.Circle(V(-35.1, -41.275, 0), V(0, 0, 1), 85.495), math.radians(-37.310765), math.radians(-23.339376)), False)
sketch6.addConstraint(Sketcher.Constraint("Coincident", 0, 2, 1, 1))
sketch6.addConstraint(Sketcher.Constraint("Tangent", 1, 2, 2, 1))
sketch6.addConstraint(Sketcher.Constraint("Tangent", 2, 2, 3, 1))
sketch6.addConstraint(Sketcher.Constraint("Coincident", 3, 2, 4, 1))
sketch6.addConstraint(Sketcher.Constraint("Coincident", 4, 2, 0, 1))
sketch6.addConstraint(Sketcher.Constraint("Coincident", 5, 2, 6, 1))
sketch6.addConstraint(Sketcher.Constraint("Coincident", 6, 2, 7, 1))
sketch6.addConstraint(Sketcher.Constraint("Coincident", 7, 2, 5, 1))
sketch6.addConstraint(Sketcher.Constraint("Coincident", 8, 2, 9, 1))
sketch6.addConstraint(Sketcher.Constraint("Coincident", 9, 2, 10, 1))
sketch6.addConstraint(Sketcher.Constraint("Coincident", 10, 2, 8, 1))
sketch6.addConstraint(Sketcher.Constraint("Coincident", 11, 2, 12, 1))
sketch6.addConstraint(Sketcher.Constraint("Coincident", 12, 2, 13, 1))
sketch6.addConstraint(Sketcher.Constraint("Coincident", 13, 2, 11, 1))
sketch6.addConstraint(Sketcher.Constraint("Coincident", 14, 2, 15, 1))
sketch6.addConstraint(Sketcher.Constraint("Coincident", 15, 2, 16, 1))
sketch6.addConstraint(Sketcher.Constraint("Coincident", 16, 2, 14, 1))
sketch6.addConstraint(Sketcher.Constraint("Coincident", 17, 2, 18, 1))
sketch6.addConstraint(Sketcher.Constraint("Coincident", 18, 2, 19, 1))
sketch6.addConstraint(Sketcher.Constraint("Coincident", 19, 2, 17, 1))
sketch6.addConstraint(Sketcher.Constraint("Coincident", 20, 2, 21, 1))
sketch6.addConstraint(Sketcher.Constraint("Coincident", 21, 2, 22, 2))
sketch6.addConstraint(Sketcher.Constraint("Tangent", 22, 1, 23, 1))
sketch6.addConstraint(Sketcher.Constraint("Coincident", 23, 2, 20, 1))
sketch6.addConstraint(Sketcher.Constraint("Coincident", 24, 2, 25, 1))
sketch6.addConstraint(Sketcher.Constraint("Coincident", 25, 2, 26, 1))
sketch6.addConstraint(Sketcher.Constraint("Coincident", 26, 2, 24, 1))
sketch6.addConstraint(Sketcher.Constraint("Coincident", 27, 2, 28, 1))
sketch6.addConstraint(Sketcher.Constraint("Coincident", 28, 2, 29, 1))
sketch6.addConstraint(Sketcher.Constraint("Coincident", 29, 2, 27, 1))
sketch6.addConstraint(Sketcher.Constraint("Coincident", 30, 2, 31, 1))
sketch6.addConstraint(Sketcher.Constraint("Coincident", 31, 2, 32, 1))
sketch6.addConstraint(Sketcher.Constraint("Tangent", 32, 2, 33, 1))
sketch6.addConstraint(Sketcher.Constraint("Coincident", 33, 2, 30, 1))
sketch6.addConstraint(Sketcher.Constraint("Coincident", 34, 2, 35, 1))
sketch6.addConstraint(Sketcher.Constraint("Coincident", 35, 2, 36, 1))
sketch6.addConstraint(Sketcher.Constraint("Coincident", 36, 2, 34, 1))
sketch6.addConstraint(Sketcher.Constraint("Horizontal", 3))
sketch6.addConstraint(Sketcher.Constraint("Vertical", 4))
sketch6.addConstraint(Sketcher.Constraint("Vertical", 6))
sketch6.addConstraint(Sketcher.Constraint("Vertical", 9))
sketch6.addConstraint(Sketcher.Constraint("Vertical", 17))
sketch6.addConstraint(Sketcher.Constraint("Coincident", 36, 3, 32, 3))
sketch6.addConstraint(Sketcher.Constraint("Equal", 32, 36))
sketch6.addConstraint(Sketcher.Constraint("Perpendicular", 0, 1))
sketch6.addConstraint(Sketcher.Constraint("Parallel", 1, 8))
sketch6.addConstraint(Sketcher.Constraint("Parallel", 10, 11))
sketch6.addConstraint(Sketcher.Constraint("Parallel", 12, 14))
sketch6.addConstraint(Sketcher.Constraint("Perpendicular", 8, 18))
sketch6.addConstraint(Sketcher.Constraint("Parallel", 5, 19))
sketch6.addConstraint(Sketcher.Constraint("Parallel", 15, 20))
sketch6.addConstraint(Sketcher.Constraint("Parallel", 7, 21))
sketch6.addConstraint(Sketcher.Constraint("Parallel", 16, 24))
sketch6.addConstraint(Sketcher.Constraint("Parallel", 23, 25))
sketch6.addConstraint(Sketcher.Constraint("Parallel", 13, 26))
sketch6.addConstraint(Sketcher.Constraint("Perpendicular", 18, 27))
sketch6.addConstraint(Sketcher.Constraint("Parallel", 26, 28))
sketch6.addConstraint(Sketcher.Constraint("Parallel", 24, 29))
sketch6.addConstraint(Sketcher.Constraint("Parallel", 29, 30))
sketch6.addConstraint(Sketcher.Constraint("Parallel", 14, 31))
sketch6.addConstraint(Sketcher.Constraint("Parallel", 31, 34))
sketch6.addConstraint(Sketcher.Constraint("Parallel", 28, 35))
sketch6.addConstraint(Sketcher.Constraint("Vertical", 4, 2, 5, 2))
sketch6.addConstraint(Sketcher.Constraint("Radius", 2, Q("0.3 in")))
sketch6.addConstraint(Sketcher.Constraint("Radius", 22, Q("0.7 in")))
sketch6.addConstraint(Sketcher.Constraint("Angle", 33, Q("75 deg")))
sketch6.addConstraint(Sketcher.Constraint("DistanceY", 32, 3, 2, 3, Q("3.5 in")))
sketch6.addConstraint(Sketcher.Constraint("DistanceX", 36, 3, 3, 2, Q("0.7 in")))
sketch6.addConstraint(Sketcher.Constraint("DistanceX", 17, 2, 8, 2, Q("0.2 in")))
sketch6.addConstraint(Sketcher.Constraint("Radius", 32, 85.495))
sketch6.addConstraint(Sketcher.Constraint("DistanceY", 22, 3, 2, 3, Q("4.75 in")))
sketch6.addConstraint(Sketcher.Constraint("DistanceY", -1, 1, 2, 3, Q("1.875 in")))
sketch6.addConstraint(Sketcher.Constraint("DistanceX", 22, 3, 1, 2, Q("0.1985 in")))
sketch6.addConstraint(Sketcher.Constraint("Distance", 16, 20.0846))
sketch6.addConstraint(Sketcher.Constraint("DistanceY", 6, 2, 6, 1, 54.092569))
sketch6.addConstraint(Sketcher.Constraint("DistanceY", 17, 1, 17, 2, 42.417222))
sketch6.addConstraint(Sketcher.Constraint("DistanceX", 32, 3, -1, 1, 35.1))
sketch6.addConstraint(Sketcher.Constraint("DistanceX", -1, 1, 0, 2, 6.496498))
sketch6.addConstraint(Sketcher.Constraint("DistanceX", -1, 1, 30, 2, 34.251401))
sketch6.addConstraint(Sketcher.Constraint("DistanceY", 12, 2, 9, 2, 23.3988))
sketch6.addConstraint(Sketcher.Constraint("DistanceY", 21, 2, 20, 2, 16.119599))
sketch6.addConstraint(Sketcher.Constraint("DistanceY", 22, 1, 21, 2, 5.724502))
sketch6.addConstraint(Sketcher.Constraint("DistanceY", 23, 2, 6, 2, 13.827601))
sketch6.addConstraint(Sketcher.Constraint("DistanceX", 22, 1, 24, 2, 8.3209))
sketch6.addConstraint(Sketcher.Constraint("DistanceX", 26, 2, 28, 2, 4.996499))
sketch6.addConstraint(Sketcher.Constraint("DistanceY", 26, 2, 29, 2, 15.688198))
sketch6.addConstraint(Sketcher.Constraint("DistanceY", 32, 2, 28, 2, 10.373))
sketch6.addConstraint(Sketcher.Constraint("DistanceX", 28, 2, 33, 2, 18.493599))
sketch6.addConstraint(Sketcher.Constraint("DistanceX", 25, 2, 35, 2, 5.070602))
sketch6.addConstraint(Sketcher.Constraint("Distance", 1, 31.550288))
sketch6.addConstraint(Sketcher.Constraint("Distance", 7, 29.17026))
sketch6.addConstraint(Sketcher.Constraint("Distance", 12, 23.50784))
sketch6.addConstraint(Sketcher.Constraint("Distance", 14, 23.35164))
sketch6.addConstraint(Sketcher.Constraint("Distance", 15, 25.363839))
sketch6.addConstraint(Sketcher.Constraint("Distance", 18, 22.574349))
sketch6.addConstraint(Sketcher.Constraint("Distance", 19, 35.931922))
sketch6.addConstraint(Sketcher.Constraint("Distance", 20, 26.604409))
sketch6.addConstraint(Sketcher.Constraint("Distance", 27, 34.577462))
sketch6.addConstraint(Sketcher.Constraint("Distance", 30, 18.26303))
sketch6.addConstraint(Sketcher.Constraint("Distance", 33, 13.43883))
sketch6.addConstraint(Sketcher.Constraint("Distance", 34, 15.92249))
sketch6.addConstraint(Sketcher.Constraint("Distance", 35, 29.63356))
sketch6.addConstraint(Sketcher.Constraint("DistanceY", 9, 2, 9, 1, 45.700577))
sketch6.addConstraint(Sketcher.Constraint("DistanceY", -1, 1, 8, 2, 18.74749))
sketch6.addConstraint(Sketcher.Constraint("DistanceX", -1, 1, 10, 2, 28.097109))
sketch6.addConstraint(Sketcher.Constraint("DistanceX", -1, 1, 12, 2, 27.357231))
sketch6.addConstraint(Sketcher.Constraint("DistanceX", -1, 1, 14, 2, 9.816389))
sketch6.addConstraint(Sketcher.Constraint("DistanceY", 16, 2, -1, 1, 56.022119))
sketch6.addConstraint(Sketcher.Constraint("DistanceY", 19, 2, -1, 1, 24.212768))
sketch6.addConstraint(Sketcher.Constraint("DistanceX", 7, 2, 9, 2, 5.839109))
pocket3 = body.newObject("PartDesign::Pocket", "Pocket002")
pocket3.Profile = sketch6
pocket3.Type = "ThroughAll"
pocket3.Midplane = True
doc.recompute()

fillet4 = body.newObject("PartDesign::Fillet", "Fillet003")
fillet4.Base = (pocket3, edges_at(pocket3, [
    (0, 32.899, -93.097),
    (0, 43.399, -75.146),
    (0, 32.579, -63.465),
    (0, 45.462, -69.897),
    (0, 50.96, -50.422),
    (0, 34.251, -57.795),
    (0, 50.44, -45.099),
    (0, 32.064, -15.808),
    (0, 32.466, -53.03),
    (0, 6.155, -70.192),
    (0, 27.829, -93.994),
    (0, 27.47, -60.787),
    (0, 2.051, -65.684),
    (0, 4.68, -39.21),
    (0, -13.578, -55.33),
    (0, 5.306, 18.204),
    (0, -13.817, 6.208),
    (0, 5.306, -24.213),
    (0, 9.816, -38.891),
    (0, 7.31, -64.13),
    (0, 25.685, -56.022),
    (0, 11.382, -33.106),
    (0, 27.357, -50.352),
    (0, 27.004, -17.697),
    (0, 28.097, -9.484),
    (0, 10.386, 18.747),
    (0, 10.386, -26.953),
    (0, -17.32, 2.236),
    (0, 4.547, -32.551),
    (0, -17.32, 55.245),
    (0, -17.32, 10.007),
    (0, 6.496, 24.948),
    (0, -17.32, -51.857),
]))
fillet4.Radius = Q("0.15 in")

doc.recompute()
